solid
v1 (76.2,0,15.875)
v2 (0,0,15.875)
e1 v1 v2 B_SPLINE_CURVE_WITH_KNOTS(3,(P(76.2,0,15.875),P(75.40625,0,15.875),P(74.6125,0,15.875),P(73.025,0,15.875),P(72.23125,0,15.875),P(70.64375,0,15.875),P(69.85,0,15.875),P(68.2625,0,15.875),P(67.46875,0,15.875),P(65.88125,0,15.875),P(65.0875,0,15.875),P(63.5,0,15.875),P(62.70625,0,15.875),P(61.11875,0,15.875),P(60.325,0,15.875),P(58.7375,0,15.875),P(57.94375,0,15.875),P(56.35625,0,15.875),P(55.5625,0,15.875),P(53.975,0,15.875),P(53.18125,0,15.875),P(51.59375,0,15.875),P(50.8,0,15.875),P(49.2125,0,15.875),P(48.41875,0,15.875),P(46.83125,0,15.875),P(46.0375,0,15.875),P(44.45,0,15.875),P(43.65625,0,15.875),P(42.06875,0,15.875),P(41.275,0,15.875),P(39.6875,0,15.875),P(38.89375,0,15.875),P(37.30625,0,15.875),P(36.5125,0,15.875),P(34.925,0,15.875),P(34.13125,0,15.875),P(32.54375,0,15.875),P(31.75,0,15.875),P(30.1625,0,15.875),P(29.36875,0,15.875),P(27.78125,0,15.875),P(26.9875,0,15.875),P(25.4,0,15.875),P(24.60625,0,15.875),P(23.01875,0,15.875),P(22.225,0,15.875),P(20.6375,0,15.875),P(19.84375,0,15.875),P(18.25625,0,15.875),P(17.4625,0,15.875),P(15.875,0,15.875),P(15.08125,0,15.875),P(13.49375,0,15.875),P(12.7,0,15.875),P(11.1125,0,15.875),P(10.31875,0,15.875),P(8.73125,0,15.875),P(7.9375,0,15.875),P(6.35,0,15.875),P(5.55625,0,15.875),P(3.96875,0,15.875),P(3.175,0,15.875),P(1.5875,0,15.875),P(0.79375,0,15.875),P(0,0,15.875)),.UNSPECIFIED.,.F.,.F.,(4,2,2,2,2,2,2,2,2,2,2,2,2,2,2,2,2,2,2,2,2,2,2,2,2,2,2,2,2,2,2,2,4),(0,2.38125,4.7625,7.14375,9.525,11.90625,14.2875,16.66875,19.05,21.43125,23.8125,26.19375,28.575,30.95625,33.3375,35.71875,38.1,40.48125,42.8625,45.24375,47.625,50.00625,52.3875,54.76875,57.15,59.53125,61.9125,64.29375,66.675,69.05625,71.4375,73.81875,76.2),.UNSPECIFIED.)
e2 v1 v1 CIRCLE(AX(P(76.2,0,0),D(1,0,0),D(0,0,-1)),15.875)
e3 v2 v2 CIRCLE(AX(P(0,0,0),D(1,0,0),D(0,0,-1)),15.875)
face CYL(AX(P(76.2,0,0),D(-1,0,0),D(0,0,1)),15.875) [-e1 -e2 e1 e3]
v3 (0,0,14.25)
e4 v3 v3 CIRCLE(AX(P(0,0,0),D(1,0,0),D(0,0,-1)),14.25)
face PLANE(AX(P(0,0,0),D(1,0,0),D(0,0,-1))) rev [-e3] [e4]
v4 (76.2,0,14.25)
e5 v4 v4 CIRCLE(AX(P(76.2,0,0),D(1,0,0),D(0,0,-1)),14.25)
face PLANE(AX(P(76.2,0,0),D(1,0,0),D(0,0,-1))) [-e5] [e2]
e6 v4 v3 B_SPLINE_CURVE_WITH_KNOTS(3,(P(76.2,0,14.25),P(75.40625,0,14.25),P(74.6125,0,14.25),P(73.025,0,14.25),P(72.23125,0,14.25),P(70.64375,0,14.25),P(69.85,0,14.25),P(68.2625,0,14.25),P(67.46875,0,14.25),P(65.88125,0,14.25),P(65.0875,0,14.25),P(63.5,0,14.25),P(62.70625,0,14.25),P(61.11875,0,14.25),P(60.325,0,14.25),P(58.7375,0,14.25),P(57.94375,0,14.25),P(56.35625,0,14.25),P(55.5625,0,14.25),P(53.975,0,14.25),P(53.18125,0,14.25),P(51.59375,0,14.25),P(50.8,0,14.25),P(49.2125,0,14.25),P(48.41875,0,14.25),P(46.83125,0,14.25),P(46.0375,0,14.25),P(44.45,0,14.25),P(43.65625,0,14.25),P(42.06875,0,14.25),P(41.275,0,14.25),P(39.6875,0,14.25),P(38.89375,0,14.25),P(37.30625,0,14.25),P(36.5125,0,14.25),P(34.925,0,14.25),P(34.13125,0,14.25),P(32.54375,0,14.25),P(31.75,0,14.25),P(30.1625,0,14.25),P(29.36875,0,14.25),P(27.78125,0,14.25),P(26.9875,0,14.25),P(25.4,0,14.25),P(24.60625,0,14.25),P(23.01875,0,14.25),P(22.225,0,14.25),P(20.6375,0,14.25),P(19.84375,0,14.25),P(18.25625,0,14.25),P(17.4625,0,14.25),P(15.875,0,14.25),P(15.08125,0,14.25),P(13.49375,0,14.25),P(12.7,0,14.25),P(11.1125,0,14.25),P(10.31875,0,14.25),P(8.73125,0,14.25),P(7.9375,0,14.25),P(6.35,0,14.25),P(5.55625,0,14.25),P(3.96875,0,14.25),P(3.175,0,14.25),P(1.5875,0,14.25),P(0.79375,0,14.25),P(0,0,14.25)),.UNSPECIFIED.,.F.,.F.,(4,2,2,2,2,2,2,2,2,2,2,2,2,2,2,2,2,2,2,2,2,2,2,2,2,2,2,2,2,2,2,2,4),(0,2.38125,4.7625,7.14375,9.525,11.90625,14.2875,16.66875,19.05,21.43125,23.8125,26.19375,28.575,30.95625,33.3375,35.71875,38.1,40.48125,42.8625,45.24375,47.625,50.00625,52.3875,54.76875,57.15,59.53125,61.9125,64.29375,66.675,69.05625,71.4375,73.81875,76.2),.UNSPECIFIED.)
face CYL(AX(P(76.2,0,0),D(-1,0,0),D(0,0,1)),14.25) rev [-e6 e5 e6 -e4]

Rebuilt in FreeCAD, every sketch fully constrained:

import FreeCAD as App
import Part
import Sketcher
from FreeCAD import Vector
Q = App.Units.Quantity

doc = App.newDocument("Part")
body = doc.addObject("PartDesign::Body", "Body")

# Sketch on YZ plane
sketch1 = doc.addObject("Sketcher::SketchObject", "Sketch")
body.addObject(sketch1)
sketch1.AttachmentSupport = (doc.YZ_Plane, [""])
sketch1.MapMode = "FlatFace"
sketch1.addGeometry(Part.Circle(Vector(0, 0, 0), Vector(0, 0, 1), 16), False)
sketch1.addGeometry(Part.Circle(Vector(0, 0, 0), Vector(0, 0, 1), 14), False)
sketch1.addConstraint(Sketcher.Constraint("Coincident", 0, 3, -1, 1))
sketch1.addConstraint(Sketcher.Constraint("Coincident", 1, 3, -1, 1))
sketch1.addConstraint(Sketcher.Constraint("Diameter", 0, Q("1.25 in")))
sketch1.addConstraint(Sketcher.Constraint("Diameter", 1, 28.5))
pad1 = doc.addObject("PartDesign::Pad", "Pad")
body.addObject(pad1)
pad1.Profile = sketch1
pad1.Length = Q("3 in")

doc.recompute()
